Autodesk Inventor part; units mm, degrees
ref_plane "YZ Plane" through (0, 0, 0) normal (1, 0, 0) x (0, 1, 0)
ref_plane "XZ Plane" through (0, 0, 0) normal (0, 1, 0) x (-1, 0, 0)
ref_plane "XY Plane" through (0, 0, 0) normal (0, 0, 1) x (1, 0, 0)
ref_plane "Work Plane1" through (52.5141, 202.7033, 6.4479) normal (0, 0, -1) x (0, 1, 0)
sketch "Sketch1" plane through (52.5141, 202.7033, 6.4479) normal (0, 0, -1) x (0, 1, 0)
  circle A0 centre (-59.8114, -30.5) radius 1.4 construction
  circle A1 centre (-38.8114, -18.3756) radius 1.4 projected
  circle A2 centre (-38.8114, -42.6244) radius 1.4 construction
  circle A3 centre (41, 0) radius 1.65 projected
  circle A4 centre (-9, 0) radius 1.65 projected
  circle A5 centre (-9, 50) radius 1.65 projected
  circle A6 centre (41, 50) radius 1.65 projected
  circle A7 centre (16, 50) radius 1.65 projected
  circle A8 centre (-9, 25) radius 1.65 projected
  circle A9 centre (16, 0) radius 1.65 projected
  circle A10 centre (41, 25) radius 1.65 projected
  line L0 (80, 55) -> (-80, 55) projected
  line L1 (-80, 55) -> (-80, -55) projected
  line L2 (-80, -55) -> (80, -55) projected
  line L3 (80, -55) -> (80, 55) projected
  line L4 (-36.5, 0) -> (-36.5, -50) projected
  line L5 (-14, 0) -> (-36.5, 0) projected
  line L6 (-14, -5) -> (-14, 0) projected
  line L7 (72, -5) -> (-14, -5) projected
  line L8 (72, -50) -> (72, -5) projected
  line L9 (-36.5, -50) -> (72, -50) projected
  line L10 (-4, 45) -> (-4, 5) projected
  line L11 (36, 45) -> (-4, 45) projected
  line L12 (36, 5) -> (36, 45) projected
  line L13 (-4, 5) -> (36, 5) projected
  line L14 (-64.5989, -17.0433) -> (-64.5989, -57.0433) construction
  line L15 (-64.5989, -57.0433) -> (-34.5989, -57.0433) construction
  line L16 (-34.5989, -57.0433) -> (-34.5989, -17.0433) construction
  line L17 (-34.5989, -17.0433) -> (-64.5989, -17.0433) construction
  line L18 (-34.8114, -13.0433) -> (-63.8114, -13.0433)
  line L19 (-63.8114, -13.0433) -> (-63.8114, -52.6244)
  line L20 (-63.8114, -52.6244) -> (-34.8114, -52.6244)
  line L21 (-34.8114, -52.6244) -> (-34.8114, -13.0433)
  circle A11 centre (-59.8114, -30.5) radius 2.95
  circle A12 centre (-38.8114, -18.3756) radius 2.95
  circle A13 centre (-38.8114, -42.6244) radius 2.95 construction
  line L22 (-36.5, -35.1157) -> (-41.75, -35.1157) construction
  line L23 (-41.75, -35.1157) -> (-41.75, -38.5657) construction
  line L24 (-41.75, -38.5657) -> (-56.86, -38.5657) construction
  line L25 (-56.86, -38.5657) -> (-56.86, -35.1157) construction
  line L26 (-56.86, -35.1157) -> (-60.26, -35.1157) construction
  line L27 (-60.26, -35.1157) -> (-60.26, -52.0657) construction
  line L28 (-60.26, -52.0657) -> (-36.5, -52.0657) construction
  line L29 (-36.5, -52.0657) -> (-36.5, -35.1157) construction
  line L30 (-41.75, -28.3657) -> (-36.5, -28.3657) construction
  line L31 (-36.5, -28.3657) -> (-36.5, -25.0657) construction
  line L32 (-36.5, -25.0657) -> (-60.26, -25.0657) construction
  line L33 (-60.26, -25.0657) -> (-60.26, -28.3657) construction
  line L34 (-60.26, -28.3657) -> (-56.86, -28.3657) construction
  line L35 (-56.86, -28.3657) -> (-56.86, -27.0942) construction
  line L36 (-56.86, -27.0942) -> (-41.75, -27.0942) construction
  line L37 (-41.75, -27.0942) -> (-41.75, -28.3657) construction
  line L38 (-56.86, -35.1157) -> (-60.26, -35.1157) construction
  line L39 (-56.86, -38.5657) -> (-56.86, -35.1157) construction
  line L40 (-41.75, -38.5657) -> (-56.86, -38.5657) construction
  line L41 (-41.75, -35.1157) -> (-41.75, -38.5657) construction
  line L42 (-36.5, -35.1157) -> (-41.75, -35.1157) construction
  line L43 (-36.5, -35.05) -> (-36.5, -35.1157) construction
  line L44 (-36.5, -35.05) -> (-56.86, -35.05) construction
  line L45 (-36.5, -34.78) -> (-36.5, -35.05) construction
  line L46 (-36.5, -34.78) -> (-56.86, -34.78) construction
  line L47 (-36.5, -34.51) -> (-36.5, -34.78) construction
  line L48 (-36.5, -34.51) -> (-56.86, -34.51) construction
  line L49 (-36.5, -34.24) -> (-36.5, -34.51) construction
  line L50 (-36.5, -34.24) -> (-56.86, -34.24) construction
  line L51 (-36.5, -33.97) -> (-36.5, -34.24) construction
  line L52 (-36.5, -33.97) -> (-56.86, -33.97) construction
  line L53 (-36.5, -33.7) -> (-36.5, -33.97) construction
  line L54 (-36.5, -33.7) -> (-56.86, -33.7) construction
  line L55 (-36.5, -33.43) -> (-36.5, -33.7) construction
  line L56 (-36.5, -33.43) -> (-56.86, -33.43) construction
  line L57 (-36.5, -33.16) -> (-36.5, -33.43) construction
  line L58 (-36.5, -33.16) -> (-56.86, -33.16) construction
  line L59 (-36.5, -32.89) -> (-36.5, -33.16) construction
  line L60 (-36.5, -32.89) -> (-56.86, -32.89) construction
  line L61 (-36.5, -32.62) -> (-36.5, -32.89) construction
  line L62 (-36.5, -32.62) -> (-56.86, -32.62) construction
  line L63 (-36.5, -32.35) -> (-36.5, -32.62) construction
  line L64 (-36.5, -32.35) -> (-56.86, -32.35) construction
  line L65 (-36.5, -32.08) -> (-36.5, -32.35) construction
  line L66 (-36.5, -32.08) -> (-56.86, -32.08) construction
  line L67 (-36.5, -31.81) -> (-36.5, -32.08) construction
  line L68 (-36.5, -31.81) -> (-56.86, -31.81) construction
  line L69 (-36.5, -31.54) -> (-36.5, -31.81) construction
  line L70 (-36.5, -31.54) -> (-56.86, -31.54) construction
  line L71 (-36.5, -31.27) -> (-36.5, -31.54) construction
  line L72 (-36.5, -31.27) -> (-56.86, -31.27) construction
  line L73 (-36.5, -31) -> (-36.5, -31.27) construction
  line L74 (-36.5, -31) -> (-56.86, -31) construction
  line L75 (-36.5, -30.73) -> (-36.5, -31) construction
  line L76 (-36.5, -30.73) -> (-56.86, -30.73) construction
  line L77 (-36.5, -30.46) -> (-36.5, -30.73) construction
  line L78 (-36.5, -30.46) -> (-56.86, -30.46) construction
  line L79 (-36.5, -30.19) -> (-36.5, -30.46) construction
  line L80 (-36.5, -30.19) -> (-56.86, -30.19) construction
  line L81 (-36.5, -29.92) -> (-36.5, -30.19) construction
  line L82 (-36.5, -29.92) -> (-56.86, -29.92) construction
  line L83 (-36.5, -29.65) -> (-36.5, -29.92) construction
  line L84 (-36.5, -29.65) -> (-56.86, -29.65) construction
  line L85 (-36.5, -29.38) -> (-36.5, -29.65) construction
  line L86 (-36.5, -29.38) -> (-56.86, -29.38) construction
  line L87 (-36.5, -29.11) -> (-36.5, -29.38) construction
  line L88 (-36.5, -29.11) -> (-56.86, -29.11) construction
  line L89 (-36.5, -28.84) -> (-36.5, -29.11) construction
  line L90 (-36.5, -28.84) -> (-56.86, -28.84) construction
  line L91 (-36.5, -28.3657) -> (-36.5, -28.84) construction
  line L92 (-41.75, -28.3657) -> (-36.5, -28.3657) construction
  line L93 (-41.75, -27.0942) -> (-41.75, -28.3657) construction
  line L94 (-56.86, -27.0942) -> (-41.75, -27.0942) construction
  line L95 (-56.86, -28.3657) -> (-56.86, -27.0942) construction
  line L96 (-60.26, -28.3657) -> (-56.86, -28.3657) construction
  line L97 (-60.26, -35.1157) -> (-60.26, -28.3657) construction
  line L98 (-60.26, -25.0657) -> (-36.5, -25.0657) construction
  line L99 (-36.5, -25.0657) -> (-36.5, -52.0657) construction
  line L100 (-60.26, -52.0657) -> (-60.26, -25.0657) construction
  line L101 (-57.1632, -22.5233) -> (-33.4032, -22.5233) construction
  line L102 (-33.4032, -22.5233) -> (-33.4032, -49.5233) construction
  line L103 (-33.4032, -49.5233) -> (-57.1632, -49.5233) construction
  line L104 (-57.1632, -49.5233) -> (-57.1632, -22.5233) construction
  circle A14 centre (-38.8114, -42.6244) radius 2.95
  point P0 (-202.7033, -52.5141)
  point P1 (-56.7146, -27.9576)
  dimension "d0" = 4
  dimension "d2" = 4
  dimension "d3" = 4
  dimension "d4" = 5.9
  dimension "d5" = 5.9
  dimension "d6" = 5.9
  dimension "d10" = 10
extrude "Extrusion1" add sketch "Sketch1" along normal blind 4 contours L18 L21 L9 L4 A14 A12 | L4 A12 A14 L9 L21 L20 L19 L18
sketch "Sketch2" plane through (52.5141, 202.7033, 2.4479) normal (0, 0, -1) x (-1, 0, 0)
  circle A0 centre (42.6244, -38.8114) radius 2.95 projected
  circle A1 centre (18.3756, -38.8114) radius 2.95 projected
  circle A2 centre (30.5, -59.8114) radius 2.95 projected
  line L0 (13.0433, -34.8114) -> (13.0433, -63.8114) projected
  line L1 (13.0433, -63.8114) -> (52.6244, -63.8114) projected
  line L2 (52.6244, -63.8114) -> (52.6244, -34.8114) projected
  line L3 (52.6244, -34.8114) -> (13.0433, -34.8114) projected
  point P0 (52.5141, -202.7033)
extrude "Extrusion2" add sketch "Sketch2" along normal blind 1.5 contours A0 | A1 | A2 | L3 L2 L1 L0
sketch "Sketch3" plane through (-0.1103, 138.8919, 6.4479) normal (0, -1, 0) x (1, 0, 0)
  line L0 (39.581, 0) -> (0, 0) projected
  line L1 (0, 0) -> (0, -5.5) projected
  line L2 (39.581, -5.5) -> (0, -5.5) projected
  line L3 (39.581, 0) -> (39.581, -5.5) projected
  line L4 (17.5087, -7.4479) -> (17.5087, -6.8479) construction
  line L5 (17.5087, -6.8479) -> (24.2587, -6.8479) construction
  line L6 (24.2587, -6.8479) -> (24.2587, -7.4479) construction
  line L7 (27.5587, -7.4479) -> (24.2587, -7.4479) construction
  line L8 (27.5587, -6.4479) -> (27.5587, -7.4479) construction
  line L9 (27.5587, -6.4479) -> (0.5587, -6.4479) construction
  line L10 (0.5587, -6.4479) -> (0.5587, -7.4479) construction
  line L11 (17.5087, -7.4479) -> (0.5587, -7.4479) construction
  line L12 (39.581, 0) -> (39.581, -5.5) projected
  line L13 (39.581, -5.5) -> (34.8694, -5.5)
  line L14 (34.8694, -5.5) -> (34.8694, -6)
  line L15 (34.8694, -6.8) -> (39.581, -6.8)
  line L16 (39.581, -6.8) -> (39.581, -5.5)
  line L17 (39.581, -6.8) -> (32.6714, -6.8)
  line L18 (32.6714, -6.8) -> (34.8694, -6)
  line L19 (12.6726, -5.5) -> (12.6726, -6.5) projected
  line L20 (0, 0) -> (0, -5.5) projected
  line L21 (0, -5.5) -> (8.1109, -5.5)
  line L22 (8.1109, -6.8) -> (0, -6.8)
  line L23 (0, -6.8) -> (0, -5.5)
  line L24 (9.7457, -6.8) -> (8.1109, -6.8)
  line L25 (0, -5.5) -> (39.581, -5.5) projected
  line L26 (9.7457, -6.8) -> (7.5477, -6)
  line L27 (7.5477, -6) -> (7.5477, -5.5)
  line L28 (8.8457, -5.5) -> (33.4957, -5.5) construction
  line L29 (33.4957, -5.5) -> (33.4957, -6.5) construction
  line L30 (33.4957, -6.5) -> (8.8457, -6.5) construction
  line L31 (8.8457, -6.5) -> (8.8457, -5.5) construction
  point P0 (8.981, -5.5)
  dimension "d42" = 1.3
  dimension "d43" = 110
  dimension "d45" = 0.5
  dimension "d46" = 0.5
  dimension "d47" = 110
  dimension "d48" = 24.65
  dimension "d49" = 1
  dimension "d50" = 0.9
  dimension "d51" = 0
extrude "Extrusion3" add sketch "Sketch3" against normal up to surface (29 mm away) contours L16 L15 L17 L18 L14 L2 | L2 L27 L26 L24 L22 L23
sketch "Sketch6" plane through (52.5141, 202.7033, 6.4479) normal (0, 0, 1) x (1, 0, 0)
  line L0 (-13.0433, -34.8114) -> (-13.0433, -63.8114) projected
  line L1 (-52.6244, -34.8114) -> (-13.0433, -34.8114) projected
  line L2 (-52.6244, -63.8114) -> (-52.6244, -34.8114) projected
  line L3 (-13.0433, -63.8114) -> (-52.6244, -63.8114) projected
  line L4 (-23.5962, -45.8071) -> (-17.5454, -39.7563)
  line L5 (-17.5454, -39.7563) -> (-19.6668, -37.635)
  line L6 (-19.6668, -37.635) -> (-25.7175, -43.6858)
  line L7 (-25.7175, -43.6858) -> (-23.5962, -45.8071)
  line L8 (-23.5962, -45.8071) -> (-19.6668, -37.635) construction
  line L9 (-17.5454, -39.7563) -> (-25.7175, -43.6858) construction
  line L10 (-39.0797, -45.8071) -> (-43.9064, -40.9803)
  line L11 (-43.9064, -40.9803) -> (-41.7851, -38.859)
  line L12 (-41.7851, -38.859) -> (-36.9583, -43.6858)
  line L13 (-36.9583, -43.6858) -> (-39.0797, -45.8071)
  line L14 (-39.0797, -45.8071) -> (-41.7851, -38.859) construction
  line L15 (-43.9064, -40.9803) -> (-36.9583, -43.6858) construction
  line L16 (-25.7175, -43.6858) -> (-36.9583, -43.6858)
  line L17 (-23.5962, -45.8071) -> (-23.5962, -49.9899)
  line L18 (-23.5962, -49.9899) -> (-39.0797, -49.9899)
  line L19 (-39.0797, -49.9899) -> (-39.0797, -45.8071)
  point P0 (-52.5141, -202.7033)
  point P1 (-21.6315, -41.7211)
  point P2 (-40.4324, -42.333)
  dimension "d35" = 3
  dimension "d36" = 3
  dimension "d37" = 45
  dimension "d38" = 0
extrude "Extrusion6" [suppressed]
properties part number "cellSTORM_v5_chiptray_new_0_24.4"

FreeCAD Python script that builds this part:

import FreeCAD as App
import Part
import Sketcher
Q = App.Units.Quantity


def add_polygon(sketch, points):
    """Adds a closed chain of lines whose ends are joined by coincident constraints."""
    first, n = sketch.GeometryCount, len(points)
    for a, b in zip(points, points[1:] + points[:1]):
        sketch.addGeometry(Part.LineSegment(App.Vector(*a, 0), App.Vector(*b, 0)), False)
    for i in range(n):
        sketch.addConstraint(Sketcher.Constraint("Coincident", first + i, 2, first + (i + 1) % n, 1))

doc = App.newDocument("Part")
params = doc.addObject("Spreadsheet::Sheet", "Params")
for row, (alias, value) in enumerate([
    ("sketch1_diameter", "5.9 mm"),
    ("sketch1_height", "29 mm"),
    ("pad1_length", "4 mm"),
    ("sketch2_height", "29 mm"),
    ("pad2_length", "1.5 mm"),
    ("sketch3_height", "1.3 mm"),
    ("sketch3_height2", "0.5 mm"),
    ("pad3_length", "29 mm"),
], start=1):
    params.set(f"A{row}", alias)
    params.set(f"B{row}", "=" + value)
    params.setAlias(f"B{row}", alias)

body = doc.addObject("PartDesign::Body", "Body")

# Sketch on XY plane
sketch1 = body.newObject("Sketcher::SketchObject", "Sketch")
sketch1.AttachmentSupport = (doc.getObject("XY_Plane"), [""])
sketch1.MapMode = "FlatFace"
sketch1.AttachmentOffset = App.Placement(App.Vector(0, 0, 6.4479), App.Rotation())
add_polygon(sketch1, [(39.5, 167.9), (39.5, 138.9), (-0.1, 138.9), (-0.1, 167.9)])  # lines 0-3
sketch1.addGeometry(Part.Circle(App.Vector(9.9, 163.9, 0), App.Vector(0, 0, 1), 3), False)  # 4
sketch1.addGeometry(Part.Circle(App.Vector(34.1, 163.9, 0), App.Vector(0, 0, 1), 3), False)  # 5
sketch1.addGeometry(Part.Circle(App.Vector(22, 142.9, 0), App.Vector(0, 0, 1), 3), False)  # 6
sketch1.addConstraint(Sketcher.Constraint("Vertical", 0))
sketch1.addConstraint(Sketcher.Constraint("Horizontal", 1))
sketch1.addConstraint(Sketcher.Constraint("Vertical", 2))
sketch1.addConstraint(Sketcher.Constraint("Horizontal", 3))
sketch1.addConstraint(Sketcher.Constraint("Equal", 4, 5))
sketch1.addConstraint(Sketcher.Constraint("Equal", 5, 6))
sketch1.addConstraint(Sketcher.Constraint("Horizontal", 4, 3, 5, 3))
sketch1.addConstraint(Sketcher.Constraint("Diameter", 4, 5.9))
sketch1.addConstraint(Sketcher.Constraint("DistanceY", 0, 2, 6, 3, 4.0))
sketch1.addConstraint(Sketcher.Constraint("DistanceX", 1, 2, 4, 3, 10.0))
sketch1.addConstraint(Sketcher.Constraint("DistanceY", 4, 3, 2, 2, 4.0))
sketch1.addConstraint(Sketcher.Constraint("DistanceY", 0, 2, 0, 1, 29.0))
sketch1.addConstraint(Sketcher.Constraint("DistanceX", 1, 2, 1, 1, 39.581))
sketch1.addConstraint(Sketcher.Constraint("DistanceY", -1, 1, 4, 3, 163.892))
sketch1.addConstraint(Sketcher.Constraint("DistanceX", -1, 1, 6, 3, 22.014))
sketch1.addConstraint(Sketcher.Constraint("DistanceX", -1, 1, 4, 3, 9.8897))
sketch1.addConstraint(Sketcher.Constraint("DistanceX", -1, 1, 5, 3, 34.1385))
sketch1.setExpression("Constraints[11]", "Params.sketch1_diameter")
sketch1.setExpression("Constraints[15]", "Params.sketch1_height")
pad1 = body.newObject("PartDesign::Pad", "Pad")
pad1.Profile = sketch1
pad1.setExpression("Length", "Params.pad1_length")
pad1.Reversed = True

# Sketch on XY plane
sketch2 = body.newObject("Sketcher::SketchObject", "Sketch001")
sketch2.AttachmentSupport = (doc.getObject("XY_Plane"), [""])
sketch2.MapMode = "FlatFace"
sketch2.AttachmentOffset = App.Placement(App.Vector(0, 0, 2.4479), App.Rotation())
add_polygon(sketch2, [(0, 168), (39, 168), (39, 139), (0, 139)])  # lines 0-3
sketch2.addConstraint(Sketcher.Constraint("Horizontal", 0))
sketch2.addConstraint(Sketcher.Constraint("Vertical", 1))
sketch2.addConstraint(Sketcher.Constraint("Horizontal", 2))
sketch2.addConstraint(Sketcher.Constraint("Vertical", 3))
sketch2.addConstraint(Sketcher.Constraint("DistanceY", 1, 2, 1, 1, 29.0))
sketch2.addConstraint(Sketcher.Constraint("DistanceX", 0, 1, 0, 2, 39.581))
sketch2.addConstraint(Sketcher.Constraint("DistanceY", -1, 1, 0, 2, 167.892))
sketch2.addConstraint(Sketcher.Constraint("DistanceX", -1, 1, 0, 2, 39.4708))
sketch2.setExpression("Constraints[8]", "Params.sketch2_height")
pad2 = body.newObject("PartDesign::Pad", "Pad001")
pad2.Profile = sketch2
pad2.setExpression("Length", "Params.pad2_length")
pad2.Reversed = True

# Sketch on XZ plane
sketch3 = body.newObject("Sketcher::SketchObject", "Sketch002")
sketch3.AttachmentSupport = (doc.getObject("XZ_Plane"), [""])
sketch3.MapMode = "FlatFace"
sketch3.AttachmentOffset = App.Placement(App.Vector(0, 0, -138.8919), App.Rotation())
add_polygon(sketch3, [(39.47, -0.35), (39.47, 0.95), (34.76, 0.95), (34.76, 0.45), (32.56, -0.35)])  # lines 0-4
add_polygon(sketch3, [(7.44, 0.95), (-0.11, 0.95), (-0.11, -0.35), (9.64, -0.35), (7.44, 0.45)])  # lines 5-9
sketch3.addConstraint(Sketcher.Constraint("Vertical", 0))
sketch3.addConstraint(Sketcher.Constraint("Horizontal", 1))
sketch3.addConstraint(Sketcher.Constraint("Vertical", 2))
sketch3.addConstraint(Sketcher.Constraint("Horizontal", 4))
sketch3.addConstraint(Sketcher.Constraint("Horizontal", 5))
sketch3.addConstraint(Sketcher.Constraint("Vertical", 6))
sketch3.addConstraint(Sketcher.Constraint("Horizontal", 7))
sketch3.addConstraint(Sketcher.Constraint("Vertical", 9))
sketch3.addConstraint(Sketcher.Constraint("Horizontal", 1, 2, 5, 2))
sketch3.addConstraint(Sketcher.Constraint("Horizontal", 4, 2, 6, 2))
sketch3.addConstraint(Sketcher.Constraint("Horizontal", 2, 2, 8, 2))
sketch3.addConstraint(Sketcher.Constraint("Equal", 3, 8))
sketch3.addConstraint(Sketcher.Constraint("DistanceY", 0, 1, 0, 2, 1.3))
sketch3.addConstraint(Sketcher.Constraint("DistanceY", 2, 2, 2, 1, 0.5))
sketch3.addConstraint(Sketcher.Constraint("Angle", 3, Q("-160.0002 deg")))
sketch3.addConstraint(Sketcher.Constraint("DistanceX", 1, 2, 1, 1, 4.7116))
sketch3.addConstraint(Sketcher.Constraint("DistanceX", 5, 2, 5, 1, 7.5477))
sketch3.addConstraint(Sketcher.Constraint("DistanceY", -1, 1, 0, 2, 0.948))
sketch3.addConstraint(Sketcher.Constraint("DistanceX", -1, 1, 1, 2, 34.759))
sketch3.addConstraint(Sketcher.Constraint("DistanceX", 5, 2, 0, 2, 39.581))
sketch3.setExpression("Constraints[22]", "Params.sketch3_height")
sketch3.setExpression("Constraints[23]", "Params.sketch3_height2")
pad3 = body.newObject("PartDesign::Pad", "Pad002")
pad3.Profile = sketch3
pad3.setExpression("Length", "Params.pad3_length")
pad3.Reversed = True

doc.recompute()
